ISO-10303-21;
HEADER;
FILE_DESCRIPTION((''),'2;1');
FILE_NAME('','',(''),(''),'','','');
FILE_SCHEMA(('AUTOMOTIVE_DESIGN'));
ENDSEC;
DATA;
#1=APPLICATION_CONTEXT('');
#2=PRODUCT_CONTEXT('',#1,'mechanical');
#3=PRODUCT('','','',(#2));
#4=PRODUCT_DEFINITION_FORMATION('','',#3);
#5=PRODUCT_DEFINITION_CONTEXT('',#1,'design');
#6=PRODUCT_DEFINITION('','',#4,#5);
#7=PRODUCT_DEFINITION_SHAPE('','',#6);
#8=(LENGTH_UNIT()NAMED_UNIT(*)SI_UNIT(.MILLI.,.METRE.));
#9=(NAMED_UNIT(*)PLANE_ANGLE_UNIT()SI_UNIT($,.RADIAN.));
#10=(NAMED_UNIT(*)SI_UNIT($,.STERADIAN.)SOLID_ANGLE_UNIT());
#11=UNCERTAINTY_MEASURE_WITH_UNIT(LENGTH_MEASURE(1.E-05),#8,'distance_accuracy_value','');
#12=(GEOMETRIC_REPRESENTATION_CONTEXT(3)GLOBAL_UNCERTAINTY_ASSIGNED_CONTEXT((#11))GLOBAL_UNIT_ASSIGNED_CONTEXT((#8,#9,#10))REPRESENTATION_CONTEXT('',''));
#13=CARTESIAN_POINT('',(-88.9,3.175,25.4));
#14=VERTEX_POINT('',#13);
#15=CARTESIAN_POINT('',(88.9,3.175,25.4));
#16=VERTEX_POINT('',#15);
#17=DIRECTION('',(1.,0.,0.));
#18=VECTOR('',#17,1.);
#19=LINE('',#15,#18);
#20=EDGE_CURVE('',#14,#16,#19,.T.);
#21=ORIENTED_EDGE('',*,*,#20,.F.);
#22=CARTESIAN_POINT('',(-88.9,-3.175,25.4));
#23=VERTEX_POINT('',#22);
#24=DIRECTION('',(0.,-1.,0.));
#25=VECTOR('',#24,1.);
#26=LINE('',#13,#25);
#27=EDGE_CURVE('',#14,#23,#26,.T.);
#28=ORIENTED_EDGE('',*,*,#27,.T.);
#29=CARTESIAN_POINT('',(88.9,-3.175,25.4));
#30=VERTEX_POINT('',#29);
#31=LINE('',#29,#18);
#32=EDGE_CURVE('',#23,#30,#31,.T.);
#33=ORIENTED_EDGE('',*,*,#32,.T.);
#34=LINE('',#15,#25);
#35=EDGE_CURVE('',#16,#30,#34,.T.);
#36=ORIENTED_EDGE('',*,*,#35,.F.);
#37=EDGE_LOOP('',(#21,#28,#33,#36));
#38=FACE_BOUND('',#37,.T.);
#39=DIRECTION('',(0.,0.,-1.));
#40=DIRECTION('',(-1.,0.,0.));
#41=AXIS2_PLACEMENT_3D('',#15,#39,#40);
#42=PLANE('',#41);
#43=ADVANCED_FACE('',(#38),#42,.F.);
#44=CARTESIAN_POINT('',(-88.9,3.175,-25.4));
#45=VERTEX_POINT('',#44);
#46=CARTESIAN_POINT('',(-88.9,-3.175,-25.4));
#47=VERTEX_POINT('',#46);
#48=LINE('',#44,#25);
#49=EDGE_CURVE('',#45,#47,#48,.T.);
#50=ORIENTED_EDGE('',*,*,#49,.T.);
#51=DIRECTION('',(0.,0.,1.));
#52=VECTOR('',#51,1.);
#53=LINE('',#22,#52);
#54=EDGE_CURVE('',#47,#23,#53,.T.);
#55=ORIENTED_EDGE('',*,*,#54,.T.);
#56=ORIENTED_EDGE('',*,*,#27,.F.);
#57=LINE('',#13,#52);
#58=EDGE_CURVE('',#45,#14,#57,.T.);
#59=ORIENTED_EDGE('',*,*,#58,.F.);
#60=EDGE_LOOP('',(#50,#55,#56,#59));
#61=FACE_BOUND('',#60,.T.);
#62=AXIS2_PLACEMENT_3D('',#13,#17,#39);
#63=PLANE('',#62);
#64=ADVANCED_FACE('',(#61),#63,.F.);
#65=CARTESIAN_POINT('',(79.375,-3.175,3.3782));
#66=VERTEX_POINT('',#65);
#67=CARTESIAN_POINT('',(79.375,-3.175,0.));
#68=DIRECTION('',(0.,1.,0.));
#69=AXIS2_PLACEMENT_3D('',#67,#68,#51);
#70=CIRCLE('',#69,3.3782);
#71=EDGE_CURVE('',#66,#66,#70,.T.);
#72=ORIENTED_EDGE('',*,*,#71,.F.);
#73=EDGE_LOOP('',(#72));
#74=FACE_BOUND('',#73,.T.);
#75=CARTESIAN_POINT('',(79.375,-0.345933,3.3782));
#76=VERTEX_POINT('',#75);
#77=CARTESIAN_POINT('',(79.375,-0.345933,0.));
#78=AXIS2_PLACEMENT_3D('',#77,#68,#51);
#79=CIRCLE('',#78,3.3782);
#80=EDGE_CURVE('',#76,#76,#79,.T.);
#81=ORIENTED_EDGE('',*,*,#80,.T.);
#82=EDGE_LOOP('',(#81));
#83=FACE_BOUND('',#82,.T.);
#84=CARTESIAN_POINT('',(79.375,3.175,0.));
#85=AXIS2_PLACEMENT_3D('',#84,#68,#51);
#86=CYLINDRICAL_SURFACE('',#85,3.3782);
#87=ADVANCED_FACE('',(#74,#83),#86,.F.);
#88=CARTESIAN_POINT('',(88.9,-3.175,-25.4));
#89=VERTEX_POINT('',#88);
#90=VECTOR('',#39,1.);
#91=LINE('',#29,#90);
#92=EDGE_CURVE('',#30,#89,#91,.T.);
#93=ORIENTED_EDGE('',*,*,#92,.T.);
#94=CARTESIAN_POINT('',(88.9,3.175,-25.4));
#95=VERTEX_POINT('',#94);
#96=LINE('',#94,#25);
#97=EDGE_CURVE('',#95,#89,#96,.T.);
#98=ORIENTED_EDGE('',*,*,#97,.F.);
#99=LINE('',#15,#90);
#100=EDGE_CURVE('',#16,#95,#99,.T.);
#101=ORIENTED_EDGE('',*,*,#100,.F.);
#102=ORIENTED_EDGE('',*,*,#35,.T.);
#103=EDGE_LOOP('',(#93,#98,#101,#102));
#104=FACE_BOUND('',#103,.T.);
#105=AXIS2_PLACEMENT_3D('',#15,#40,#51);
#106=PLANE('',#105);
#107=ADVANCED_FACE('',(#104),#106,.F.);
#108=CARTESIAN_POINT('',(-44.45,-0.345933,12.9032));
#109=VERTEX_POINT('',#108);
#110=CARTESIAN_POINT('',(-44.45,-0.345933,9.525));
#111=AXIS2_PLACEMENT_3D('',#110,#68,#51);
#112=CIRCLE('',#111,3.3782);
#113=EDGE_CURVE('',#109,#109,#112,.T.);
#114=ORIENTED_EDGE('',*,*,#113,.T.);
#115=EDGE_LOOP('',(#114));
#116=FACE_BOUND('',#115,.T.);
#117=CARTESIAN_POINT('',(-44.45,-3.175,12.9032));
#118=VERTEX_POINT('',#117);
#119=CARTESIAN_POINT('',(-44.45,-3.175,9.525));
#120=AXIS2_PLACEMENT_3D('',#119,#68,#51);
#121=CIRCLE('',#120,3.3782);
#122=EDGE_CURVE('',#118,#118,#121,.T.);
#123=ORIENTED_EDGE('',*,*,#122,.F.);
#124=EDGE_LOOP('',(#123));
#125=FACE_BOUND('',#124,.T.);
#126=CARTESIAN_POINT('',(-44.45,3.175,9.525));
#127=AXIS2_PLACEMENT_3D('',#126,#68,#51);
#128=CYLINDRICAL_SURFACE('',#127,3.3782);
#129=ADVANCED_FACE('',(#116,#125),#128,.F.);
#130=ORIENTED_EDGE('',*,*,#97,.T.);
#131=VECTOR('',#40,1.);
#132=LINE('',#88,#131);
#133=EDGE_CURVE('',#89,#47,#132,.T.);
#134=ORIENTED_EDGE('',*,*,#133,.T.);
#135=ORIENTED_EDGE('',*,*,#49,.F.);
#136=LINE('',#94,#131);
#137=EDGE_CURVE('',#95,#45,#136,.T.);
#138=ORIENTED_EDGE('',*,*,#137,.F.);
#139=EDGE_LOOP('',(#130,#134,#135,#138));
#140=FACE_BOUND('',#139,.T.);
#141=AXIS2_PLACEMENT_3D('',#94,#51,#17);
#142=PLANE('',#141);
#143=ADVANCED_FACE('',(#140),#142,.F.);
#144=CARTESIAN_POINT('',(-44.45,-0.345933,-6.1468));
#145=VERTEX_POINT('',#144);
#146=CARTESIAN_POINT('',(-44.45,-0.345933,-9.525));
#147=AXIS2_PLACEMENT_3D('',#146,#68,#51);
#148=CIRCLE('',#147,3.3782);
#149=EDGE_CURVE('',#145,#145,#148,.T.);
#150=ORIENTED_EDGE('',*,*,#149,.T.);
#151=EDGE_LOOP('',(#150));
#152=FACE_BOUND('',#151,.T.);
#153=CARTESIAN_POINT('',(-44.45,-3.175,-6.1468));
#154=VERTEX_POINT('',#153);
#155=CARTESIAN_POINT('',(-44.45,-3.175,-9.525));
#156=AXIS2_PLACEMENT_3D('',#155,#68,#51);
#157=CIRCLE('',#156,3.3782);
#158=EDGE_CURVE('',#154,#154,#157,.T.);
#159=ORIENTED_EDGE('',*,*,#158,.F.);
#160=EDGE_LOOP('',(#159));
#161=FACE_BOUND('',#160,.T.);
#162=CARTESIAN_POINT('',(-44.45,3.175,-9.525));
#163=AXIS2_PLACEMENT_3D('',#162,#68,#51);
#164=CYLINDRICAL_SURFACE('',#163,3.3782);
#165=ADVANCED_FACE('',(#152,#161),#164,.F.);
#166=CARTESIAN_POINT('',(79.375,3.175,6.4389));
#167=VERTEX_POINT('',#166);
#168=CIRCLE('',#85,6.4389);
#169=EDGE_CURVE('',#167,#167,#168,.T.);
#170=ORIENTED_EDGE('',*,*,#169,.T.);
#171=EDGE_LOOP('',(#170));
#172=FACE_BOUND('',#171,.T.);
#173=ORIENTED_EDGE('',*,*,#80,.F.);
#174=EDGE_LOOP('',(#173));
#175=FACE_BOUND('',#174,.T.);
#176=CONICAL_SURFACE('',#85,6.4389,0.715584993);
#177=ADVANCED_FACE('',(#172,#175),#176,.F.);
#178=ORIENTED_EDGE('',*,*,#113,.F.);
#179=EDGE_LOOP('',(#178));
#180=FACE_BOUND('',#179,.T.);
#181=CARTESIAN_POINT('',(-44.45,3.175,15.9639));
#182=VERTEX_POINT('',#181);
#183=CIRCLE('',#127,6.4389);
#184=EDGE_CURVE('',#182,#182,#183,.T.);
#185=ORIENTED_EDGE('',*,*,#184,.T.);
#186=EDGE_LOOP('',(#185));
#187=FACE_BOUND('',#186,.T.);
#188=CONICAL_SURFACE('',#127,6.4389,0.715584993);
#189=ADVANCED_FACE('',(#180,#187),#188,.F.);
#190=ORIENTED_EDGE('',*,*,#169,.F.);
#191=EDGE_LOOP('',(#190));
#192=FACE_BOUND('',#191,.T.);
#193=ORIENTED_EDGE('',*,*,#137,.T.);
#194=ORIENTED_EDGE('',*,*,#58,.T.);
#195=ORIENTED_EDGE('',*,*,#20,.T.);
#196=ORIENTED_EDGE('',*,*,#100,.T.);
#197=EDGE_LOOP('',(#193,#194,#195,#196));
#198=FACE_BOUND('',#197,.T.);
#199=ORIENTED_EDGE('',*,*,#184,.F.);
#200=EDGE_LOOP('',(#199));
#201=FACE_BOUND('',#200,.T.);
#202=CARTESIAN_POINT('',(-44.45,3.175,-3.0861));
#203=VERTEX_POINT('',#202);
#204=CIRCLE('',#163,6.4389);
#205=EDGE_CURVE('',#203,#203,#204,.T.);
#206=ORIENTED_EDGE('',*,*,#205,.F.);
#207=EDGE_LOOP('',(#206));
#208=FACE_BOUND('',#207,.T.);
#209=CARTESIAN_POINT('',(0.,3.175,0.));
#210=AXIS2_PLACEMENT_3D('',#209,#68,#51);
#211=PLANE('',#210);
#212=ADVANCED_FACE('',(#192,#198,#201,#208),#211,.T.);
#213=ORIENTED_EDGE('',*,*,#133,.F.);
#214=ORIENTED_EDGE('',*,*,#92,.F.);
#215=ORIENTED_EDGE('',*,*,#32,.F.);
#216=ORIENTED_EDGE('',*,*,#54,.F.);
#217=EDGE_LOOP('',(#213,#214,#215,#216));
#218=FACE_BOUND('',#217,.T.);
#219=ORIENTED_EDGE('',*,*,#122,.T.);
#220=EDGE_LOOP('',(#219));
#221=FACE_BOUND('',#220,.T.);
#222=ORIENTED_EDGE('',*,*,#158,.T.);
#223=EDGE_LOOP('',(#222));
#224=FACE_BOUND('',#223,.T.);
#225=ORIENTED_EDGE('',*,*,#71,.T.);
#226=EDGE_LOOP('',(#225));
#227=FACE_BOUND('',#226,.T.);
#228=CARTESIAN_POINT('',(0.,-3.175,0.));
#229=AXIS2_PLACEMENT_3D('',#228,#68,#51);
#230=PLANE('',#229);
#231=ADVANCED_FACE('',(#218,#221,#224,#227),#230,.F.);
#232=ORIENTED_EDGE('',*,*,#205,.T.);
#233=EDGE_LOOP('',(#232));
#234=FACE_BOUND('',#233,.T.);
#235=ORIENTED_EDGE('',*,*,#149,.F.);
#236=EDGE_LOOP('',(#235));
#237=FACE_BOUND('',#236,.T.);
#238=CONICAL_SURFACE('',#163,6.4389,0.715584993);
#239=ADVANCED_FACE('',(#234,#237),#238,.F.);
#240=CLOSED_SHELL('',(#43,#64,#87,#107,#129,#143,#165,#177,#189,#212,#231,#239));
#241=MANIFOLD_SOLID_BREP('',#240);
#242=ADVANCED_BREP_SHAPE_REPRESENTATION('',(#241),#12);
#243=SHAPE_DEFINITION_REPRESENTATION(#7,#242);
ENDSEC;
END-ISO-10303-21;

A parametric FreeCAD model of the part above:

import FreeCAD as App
import Part
import Sketcher
Q = App.Units.Quantity

doc = App.newDocument("Part")
params = doc.addObject("Spreadsheet::Sheet", "Params")
for row, (alias, value) in enumerate([
    ("sketch1_width", "7 in"),
    ("sketch1_height", "2 in"),
    ("pad1_length", "0.25 in"),
    ("sketch2_diameter", "0.266 in"),
    ("hole_diameter", "0.266 in"),
    ("hole_depth", "0.75 in"),
    ("hole_csink_diameter", "0.507 in"),
], start=1):
    params.set(f"A{row}", alias)
    params.set(f"B{row}", "=" + value)
    params.setAlias(f"B{row}", alias)

body = doc.addObject("PartDesign::Body", "Body")

# Sketch on XZ plane
sketch1 = body.newObject("Sketcher::SketchObject", "Sketch")
sketch1.AttachmentSupport = (doc.getObject("XZ_Plane"), [""])
sketch1.MapMode = "FlatFace"
sketch1.addGeometry([
    Part.LineSegment(App.Vector(-88.9, -25.4, 0), App.Vector(-88.9, 25.4, 0)),
    Part.LineSegment(App.Vector(-88.9, 25.4, 0), App.Vector(88.9, 25.4, 0)),
    Part.LineSegment(App.Vector(88.9, 25.4, 0), App.Vector(88.9, -25.4, 0)),
    Part.LineSegment(App.Vector(88.9, -25.4, 0), App.Vector(-88.9, -25.4, 0)),
], False)
sketch1.addConstraint([
    Sketcher.Constraint("Coincident", 0, 2, 1, 1),
    Sketcher.Constraint("Coincident", 1, 2, 2, 1),
    Sketcher.Constraint("Coincident", 2, 2, 3, 1),
    Sketcher.Constraint("Coincident", 3, 2, 0, 1),
    Sketcher.Constraint("Vertical", 0),
    Sketcher.Constraint("Horizontal", 1),
    Sketcher.Constraint("Vertical", 2),
    Sketcher.Constraint("Horizontal", 3),
    Sketcher.Constraint("Symmetric", 0, 2, 2, 2, -1, 1),
    Sketcher.Constraint("DistanceX", 1, 1, 1, 2, Q("7 in")),
    Sketcher.Constraint("DistanceY", 0, 1, 0, 2, Q("2 in")),
])
sketch1.setExpression("Constraints[9]", "Params.sketch1_width")
sketch1.setExpression("Constraints[10]", "Params.sketch1_height")
pad1 = body.newObject("PartDesign::Pad", "Pad")
pad1.Profile = sketch1
pad1.setExpression("Length", "Params.pad1_length")
pad1.Midplane = True

# Sketch on XZ plane
sketch2 = body.newObject("Sketcher::SketchObject", "Sketch001")
sketch2.AttachmentSupport = (doc.getObject("XZ_Plane"), [""])
sketch2.MapMode = "FlatFace"
sketch2.AttachmentOffset = App.Placement(App.Vector(0, 0, -0.125 * 25.4), App.Rotation())
sketch2.addGeometry([
    Part.Circle(App.Vector(79.375, 0, 0), App.Vector(0, 0, 1), 3.3782),
    Part.Circle(App.Vector(-44.45, -9.525, 0), App.Vector(0, 0, 1), 3.3782),
    Part.Circle(App.Vector(-44.45, 9.525, 0), App.Vector(0, 0, 1), 3.3782),
], False)
sketch2.addConstraint([
    Sketcher.Constraint("Equal", 0, 1),
    Sketcher.Constraint("Equal", 1, 2),
    Sketcher.Constraint("Symmetric", 1, 3, 2, 3, -1),
    Sketcher.Constraint("PointOnObject", 0, 3, -1),
    Sketcher.Constraint("Diameter", 0, Q("0.266 in")),
    Sketcher.Constraint("DistanceX", 1, 3, -1, 1, Q("1.75 in")),
    Sketcher.Constraint("DistanceY", 1, 3, 2, 3, Q("0.75 in")),
    Sketcher.Constraint("DistanceX", -1, 1, 0, 3, Q("3.125 in")),
])
sketch2.setExpression("Constraints[4]", "Params.sketch2_diameter")
doc.recompute()
hole = body.newObject("PartDesign::Hole", "Hole")
hole.Profile = sketch2
hole.ThreadType = "None"
hole.setExpression("Diameter", "Params.hole_diameter")
hole.DepthType = "Dimension"
hole.setExpression("Depth", "Params.hole_depth")
hole.DrillPoint = "Angled"
hole.DrillPointAngle = 118
hole.HoleCutType = "Countersink"
hole.setExpression("HoleCutDiameter", "Params.hole_csink_diameter")
hole.HoleCutCountersinkAngle = 82
hole.Reversed = True

doc.recompute()
